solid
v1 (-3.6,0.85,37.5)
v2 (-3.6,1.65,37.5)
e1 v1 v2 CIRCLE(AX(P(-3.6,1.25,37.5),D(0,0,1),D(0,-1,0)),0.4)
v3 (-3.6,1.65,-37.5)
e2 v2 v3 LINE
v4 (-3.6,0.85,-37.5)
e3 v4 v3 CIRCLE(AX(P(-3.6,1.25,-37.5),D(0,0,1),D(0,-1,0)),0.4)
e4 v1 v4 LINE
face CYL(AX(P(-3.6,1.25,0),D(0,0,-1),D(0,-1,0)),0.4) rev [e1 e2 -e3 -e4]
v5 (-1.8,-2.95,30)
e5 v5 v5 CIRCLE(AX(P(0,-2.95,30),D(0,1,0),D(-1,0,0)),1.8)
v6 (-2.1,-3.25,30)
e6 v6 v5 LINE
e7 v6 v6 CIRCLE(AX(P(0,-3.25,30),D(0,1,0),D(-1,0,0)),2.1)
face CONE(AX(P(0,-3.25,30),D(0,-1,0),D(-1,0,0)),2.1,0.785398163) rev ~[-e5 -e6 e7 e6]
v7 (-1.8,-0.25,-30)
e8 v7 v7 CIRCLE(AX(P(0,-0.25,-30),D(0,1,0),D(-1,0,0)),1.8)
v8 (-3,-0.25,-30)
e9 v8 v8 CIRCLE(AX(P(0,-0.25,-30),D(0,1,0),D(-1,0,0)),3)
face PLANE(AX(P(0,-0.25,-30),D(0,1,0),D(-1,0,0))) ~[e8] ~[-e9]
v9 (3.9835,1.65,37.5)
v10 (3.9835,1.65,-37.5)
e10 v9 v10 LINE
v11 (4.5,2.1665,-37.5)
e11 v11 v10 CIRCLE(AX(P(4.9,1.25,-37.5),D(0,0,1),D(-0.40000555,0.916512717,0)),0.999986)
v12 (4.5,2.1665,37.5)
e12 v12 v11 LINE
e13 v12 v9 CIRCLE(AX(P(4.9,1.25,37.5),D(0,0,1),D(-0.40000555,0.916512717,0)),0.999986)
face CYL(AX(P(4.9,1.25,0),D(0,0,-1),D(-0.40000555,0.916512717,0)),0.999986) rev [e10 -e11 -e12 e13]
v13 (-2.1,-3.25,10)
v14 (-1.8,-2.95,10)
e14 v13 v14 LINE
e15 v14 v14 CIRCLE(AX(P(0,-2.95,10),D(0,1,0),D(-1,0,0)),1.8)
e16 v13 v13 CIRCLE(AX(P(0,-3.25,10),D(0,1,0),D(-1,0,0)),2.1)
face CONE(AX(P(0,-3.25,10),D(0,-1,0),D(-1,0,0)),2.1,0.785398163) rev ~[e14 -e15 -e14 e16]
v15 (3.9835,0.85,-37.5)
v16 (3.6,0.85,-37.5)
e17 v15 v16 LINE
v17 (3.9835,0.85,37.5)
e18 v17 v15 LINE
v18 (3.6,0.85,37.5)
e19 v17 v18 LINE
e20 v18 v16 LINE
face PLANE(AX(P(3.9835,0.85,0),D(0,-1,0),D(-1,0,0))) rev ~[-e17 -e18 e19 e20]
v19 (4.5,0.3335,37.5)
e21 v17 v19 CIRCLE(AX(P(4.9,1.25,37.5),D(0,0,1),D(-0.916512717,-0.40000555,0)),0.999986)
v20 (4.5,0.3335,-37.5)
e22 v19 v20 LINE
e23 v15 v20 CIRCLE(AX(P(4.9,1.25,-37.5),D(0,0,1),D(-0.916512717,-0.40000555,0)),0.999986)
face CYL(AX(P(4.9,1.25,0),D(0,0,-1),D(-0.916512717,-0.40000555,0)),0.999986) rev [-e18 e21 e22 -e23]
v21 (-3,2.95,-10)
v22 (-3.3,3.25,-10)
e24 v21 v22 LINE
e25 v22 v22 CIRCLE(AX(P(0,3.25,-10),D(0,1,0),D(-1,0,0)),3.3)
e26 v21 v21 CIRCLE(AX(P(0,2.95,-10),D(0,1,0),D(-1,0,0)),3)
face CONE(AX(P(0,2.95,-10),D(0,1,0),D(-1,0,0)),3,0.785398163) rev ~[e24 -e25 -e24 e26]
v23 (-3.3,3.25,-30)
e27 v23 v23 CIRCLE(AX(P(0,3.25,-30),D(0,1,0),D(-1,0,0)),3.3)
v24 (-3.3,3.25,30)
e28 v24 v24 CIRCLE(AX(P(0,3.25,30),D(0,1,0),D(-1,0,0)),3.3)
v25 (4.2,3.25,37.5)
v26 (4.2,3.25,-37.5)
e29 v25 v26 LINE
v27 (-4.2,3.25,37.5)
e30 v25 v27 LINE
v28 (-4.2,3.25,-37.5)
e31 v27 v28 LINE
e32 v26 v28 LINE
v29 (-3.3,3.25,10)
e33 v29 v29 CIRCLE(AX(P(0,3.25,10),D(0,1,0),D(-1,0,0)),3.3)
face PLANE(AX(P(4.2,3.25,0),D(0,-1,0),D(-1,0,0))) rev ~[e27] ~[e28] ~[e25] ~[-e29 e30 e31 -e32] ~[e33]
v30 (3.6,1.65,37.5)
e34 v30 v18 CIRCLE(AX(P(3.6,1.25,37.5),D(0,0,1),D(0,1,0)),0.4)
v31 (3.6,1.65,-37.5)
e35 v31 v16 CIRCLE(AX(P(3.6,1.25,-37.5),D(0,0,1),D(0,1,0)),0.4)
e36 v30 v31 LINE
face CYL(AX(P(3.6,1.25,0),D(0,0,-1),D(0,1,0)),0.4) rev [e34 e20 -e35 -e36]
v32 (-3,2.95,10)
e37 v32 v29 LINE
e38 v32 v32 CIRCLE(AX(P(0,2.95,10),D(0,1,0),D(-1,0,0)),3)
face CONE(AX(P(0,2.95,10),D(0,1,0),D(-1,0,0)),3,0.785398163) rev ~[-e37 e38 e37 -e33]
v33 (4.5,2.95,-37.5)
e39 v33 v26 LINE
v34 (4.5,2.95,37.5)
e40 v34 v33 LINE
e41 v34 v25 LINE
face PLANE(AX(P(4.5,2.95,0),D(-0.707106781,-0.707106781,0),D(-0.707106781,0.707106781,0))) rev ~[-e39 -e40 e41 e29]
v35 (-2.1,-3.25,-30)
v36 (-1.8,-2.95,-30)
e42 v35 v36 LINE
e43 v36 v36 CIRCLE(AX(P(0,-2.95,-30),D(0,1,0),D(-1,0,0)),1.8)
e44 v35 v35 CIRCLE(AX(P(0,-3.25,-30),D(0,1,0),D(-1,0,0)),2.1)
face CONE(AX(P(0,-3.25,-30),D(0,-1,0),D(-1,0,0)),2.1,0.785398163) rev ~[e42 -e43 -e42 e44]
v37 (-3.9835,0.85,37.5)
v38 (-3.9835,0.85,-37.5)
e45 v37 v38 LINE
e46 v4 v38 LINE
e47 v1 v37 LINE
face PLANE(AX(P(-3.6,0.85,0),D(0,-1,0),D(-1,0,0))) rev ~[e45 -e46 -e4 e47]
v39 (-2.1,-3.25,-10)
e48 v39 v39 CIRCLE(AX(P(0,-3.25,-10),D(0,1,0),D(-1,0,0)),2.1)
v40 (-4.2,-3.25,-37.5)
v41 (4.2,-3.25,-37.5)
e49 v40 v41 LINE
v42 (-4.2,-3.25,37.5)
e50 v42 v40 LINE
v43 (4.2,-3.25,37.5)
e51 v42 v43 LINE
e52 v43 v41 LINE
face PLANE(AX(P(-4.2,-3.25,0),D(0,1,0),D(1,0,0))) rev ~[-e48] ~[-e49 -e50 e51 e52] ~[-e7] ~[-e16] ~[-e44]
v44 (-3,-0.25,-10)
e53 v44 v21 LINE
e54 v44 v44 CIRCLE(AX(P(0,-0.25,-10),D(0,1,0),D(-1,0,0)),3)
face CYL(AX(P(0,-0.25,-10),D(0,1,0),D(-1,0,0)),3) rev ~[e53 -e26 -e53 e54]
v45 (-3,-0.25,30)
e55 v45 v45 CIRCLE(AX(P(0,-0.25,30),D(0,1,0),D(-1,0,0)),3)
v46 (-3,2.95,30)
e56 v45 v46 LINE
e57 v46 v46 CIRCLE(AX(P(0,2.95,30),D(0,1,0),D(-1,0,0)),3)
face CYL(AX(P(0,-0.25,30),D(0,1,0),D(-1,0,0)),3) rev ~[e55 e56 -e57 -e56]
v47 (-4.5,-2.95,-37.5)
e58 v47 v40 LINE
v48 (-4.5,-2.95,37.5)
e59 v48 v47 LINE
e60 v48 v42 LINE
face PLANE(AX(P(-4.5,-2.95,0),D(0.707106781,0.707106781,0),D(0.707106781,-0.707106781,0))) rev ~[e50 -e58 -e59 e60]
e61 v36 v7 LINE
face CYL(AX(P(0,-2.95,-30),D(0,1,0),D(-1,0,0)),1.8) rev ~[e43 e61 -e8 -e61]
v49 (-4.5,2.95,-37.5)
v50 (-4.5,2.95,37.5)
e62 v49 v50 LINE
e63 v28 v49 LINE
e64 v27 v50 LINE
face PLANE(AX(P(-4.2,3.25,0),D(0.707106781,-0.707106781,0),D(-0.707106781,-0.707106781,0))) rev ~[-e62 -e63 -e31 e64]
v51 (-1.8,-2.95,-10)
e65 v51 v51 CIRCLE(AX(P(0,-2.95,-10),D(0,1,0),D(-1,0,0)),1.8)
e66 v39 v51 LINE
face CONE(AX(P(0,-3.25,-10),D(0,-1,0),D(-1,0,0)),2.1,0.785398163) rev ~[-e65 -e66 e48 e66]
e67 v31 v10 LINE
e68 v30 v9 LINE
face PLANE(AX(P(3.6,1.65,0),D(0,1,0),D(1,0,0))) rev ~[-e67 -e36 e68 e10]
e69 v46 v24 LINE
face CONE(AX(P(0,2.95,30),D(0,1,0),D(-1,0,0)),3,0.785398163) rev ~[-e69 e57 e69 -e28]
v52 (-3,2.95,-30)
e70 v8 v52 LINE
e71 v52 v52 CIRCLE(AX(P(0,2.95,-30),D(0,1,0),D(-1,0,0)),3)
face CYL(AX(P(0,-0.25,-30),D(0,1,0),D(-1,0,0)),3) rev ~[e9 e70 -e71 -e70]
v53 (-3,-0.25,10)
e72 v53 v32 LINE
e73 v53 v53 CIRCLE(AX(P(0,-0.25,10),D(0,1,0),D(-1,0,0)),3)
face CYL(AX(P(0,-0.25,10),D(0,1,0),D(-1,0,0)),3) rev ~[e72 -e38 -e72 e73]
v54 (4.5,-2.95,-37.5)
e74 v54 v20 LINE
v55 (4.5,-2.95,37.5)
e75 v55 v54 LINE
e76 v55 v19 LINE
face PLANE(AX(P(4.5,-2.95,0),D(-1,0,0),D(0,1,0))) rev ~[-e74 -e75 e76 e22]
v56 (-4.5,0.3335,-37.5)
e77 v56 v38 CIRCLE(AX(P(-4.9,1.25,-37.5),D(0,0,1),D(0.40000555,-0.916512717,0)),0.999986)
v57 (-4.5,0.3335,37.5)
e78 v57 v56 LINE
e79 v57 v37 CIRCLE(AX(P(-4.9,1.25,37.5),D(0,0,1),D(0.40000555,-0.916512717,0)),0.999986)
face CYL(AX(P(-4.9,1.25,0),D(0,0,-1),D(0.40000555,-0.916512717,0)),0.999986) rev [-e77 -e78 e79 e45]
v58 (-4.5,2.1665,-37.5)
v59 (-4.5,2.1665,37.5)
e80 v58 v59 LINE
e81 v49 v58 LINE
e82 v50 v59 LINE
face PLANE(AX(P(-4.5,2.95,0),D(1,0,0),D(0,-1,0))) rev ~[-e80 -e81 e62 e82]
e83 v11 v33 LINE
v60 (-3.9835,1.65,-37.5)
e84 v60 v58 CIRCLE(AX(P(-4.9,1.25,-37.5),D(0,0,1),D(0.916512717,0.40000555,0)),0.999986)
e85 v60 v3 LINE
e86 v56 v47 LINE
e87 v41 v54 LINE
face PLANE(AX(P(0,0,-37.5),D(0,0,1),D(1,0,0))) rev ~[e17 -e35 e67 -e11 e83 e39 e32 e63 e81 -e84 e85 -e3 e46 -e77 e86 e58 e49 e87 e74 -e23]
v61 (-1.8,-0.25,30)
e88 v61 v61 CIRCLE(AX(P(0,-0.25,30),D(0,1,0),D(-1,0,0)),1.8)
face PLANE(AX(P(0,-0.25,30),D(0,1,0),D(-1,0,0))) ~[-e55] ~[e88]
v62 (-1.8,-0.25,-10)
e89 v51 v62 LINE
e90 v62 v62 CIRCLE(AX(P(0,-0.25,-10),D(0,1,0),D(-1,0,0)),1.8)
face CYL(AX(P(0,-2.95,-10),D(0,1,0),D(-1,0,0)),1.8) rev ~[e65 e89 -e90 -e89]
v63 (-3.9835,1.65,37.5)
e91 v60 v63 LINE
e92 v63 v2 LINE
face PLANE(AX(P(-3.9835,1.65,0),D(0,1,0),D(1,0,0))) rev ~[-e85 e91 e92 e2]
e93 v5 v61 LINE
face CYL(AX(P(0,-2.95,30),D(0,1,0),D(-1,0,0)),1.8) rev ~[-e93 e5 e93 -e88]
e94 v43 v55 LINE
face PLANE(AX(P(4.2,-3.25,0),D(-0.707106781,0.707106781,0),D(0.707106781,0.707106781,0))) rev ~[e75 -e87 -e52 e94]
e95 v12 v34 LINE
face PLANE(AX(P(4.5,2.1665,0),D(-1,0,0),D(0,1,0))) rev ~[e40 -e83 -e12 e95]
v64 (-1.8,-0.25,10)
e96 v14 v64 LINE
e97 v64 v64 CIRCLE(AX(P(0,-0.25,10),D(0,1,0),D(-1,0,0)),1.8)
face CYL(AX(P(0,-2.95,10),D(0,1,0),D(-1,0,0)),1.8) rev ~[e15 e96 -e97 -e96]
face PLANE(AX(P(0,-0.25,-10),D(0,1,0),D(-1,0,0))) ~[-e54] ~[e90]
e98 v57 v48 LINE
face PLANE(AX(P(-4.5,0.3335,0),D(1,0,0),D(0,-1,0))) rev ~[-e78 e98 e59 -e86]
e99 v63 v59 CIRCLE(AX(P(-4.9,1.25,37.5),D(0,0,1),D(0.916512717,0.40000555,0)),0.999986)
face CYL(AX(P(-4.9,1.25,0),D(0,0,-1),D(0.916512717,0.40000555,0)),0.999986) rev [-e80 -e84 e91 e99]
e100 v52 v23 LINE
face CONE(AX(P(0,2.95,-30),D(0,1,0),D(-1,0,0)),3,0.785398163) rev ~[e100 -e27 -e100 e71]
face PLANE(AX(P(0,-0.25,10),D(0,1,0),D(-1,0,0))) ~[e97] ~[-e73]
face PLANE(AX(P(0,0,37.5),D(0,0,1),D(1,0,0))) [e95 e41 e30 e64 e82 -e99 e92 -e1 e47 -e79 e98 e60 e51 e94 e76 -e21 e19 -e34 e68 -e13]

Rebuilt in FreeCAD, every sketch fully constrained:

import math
import FreeCAD as App
import Part
import Sketcher
Q = App.Units.Quantity


def add_polygon(sketch, points):
    """Adds a closed chain of lines whose ends are joined by coincident constraints."""
    first, n = sketch.GeometryCount, len(points)
    for a, b in zip(points, points[1:] + points[:1]):
        sketch.addGeometry(Part.LineSegment(App.Vector(*a, 0), App.Vector(*b, 0)), False)
    for i in range(n):
        sketch.addConstraint(Sketcher.Constraint("Coincident", first + i, 2, first + (i + 1) % n, 1))

doc = App.newDocument("Part")
params = doc.addObject("Spreadsheet::Sheet", "Params")
for row, (alias, value) in enumerate([
    ("sketch1_radius", "1 mm"),
    ("sketch1_radius2", "0.4 mm"),
    ("sketch1_width", "8.4 mm"),
    ("pad1_length", "75 mm"),
    ("sketch2_width", "3.3 mm"),
    ("sketch2_width2", "1.2 mm"),
    ("sketch2_height", "6.5 mm"),
    ("sketch2_height2", "3.2 mm"),
    ("sketch2_height3", "2.7 mm"),
    ("groove_angle", "360 deg"),
    ("linearpattern_pitch", "20 mm"),
], start=1):
    params.set(f"A{row}", alias)
    params.set(f"B{row}", "=" + value)
    params.setAlias(f"B{row}", alias)

body = doc.addObject("PartDesign::Body", "Body")

# Sketch on XY plane
sketch1 = body.newObject("Sketcher::SketchObject", "Sketch")
sketch1.AttachmentSupport = (doc.getObject("XY_Plane"), [""])
sketch1.MapMode = "FlatFace"
sketch1.addGeometry([
    Part.LineSegment(App.Vector(-4.2, 3.25, 0), App.Vector(-4.5, 2.95, 0)),  # 0
    Part.LineSegment(App.Vector(-4.5, 2.95, 0), App.Vector(-4.5, 2.17, 0)),  # 1
    Part.ArcOfCircle(Part.Circle(App.Vector(-4.9, 1.25, 0), App.Vector(0, 0, 1), 1), math.radians(24), math.radians(66)),  # 2
    Part.LineSegment(App.Vector(-3.98, 1.65, 0), App.Vector(-3.6, 1.65, 0)),  # 3
    Part.ArcOfCircle(Part.Circle(App.Vector(-3.6, 1.25, 0), App.Vector(0, 0, 1), 0.4), math.radians(-90), math.radians(90)),  # 4
    Part.LineSegment(App.Vector(-3.6, 0.85, 0), App.Vector(-3.98, 0.85, 0)),  # 5
    Part.ArcOfCircle(Part.Circle(App.Vector(-4.9, 1.25, 0), App.Vector(0, 0, 1), 1), math.radians(-66), math.radians(-24)),  # 6
    Part.LineSegment(App.Vector(-4.5, 0.33, 0), App.Vector(-4.5, -2.95, 0)),  # 7
    Part.LineSegment(App.Vector(-4.5, -2.95, 0), App.Vector(-4.2, -3.25, 0)),  # 8
    Part.LineSegment(App.Vector(-4.2, -3.25, 0), App.Vector(4.2, -3.25, 0)),  # 9
    Part.LineSegment(App.Vector(4.2, -3.25, 0), App.Vector(4.5, -2.95, 0)),  # 10
    Part.LineSegment(App.Vector(4.5, -2.95, 0), App.Vector(4.5, 0.33, 0)),  # 11
    Part.ArcOfCircle(Part.Circle(App.Vector(4.9, 1.25, 0), App.Vector(0, 0, 1), 1), math.radians(-156), math.radians(-114)),  # 12
    Part.LineSegment(App.Vector(3.98, 0.85, 0), App.Vector(3.6, 0.85, 0)),  # 13
    Part.ArcOfCircle(Part.Circle(App.Vector(3.6, 1.25, 0), App.Vector(0, 0, 1), 0.4), math.radians(90), math.radians(270)),  # 14
    Part.LineSegment(App.Vector(3.6, 1.65, 0), App.Vector(3.98, 1.65, 0)),  # 15
    Part.ArcOfCircle(Part.Circle(App.Vector(4.9, 1.25, 0), App.Vector(0, 0, 1), 1), math.radians(114), math.radians(156)),  # 16
    Part.LineSegment(App.Vector(4.5, 2.17, 0), App.Vector(4.5, 2.95, 0)),  # 17
    Part.LineSegment(App.Vector(4.5, 2.95, 0), App.Vector(4.2, 3.25, 0)),  # 18
    Part.LineSegment(App.Vector(4.2, 3.25, 0), App.Vector(-4.2, 3.25, 0)),  # 19
], False)
sketch1.addConstraint([
    Sketcher.Constraint("Coincident", 0, 2, 1, 1),
    Sketcher.Constraint("Coincident", 1, 2, 2, 2),
    Sketcher.Constraint("Coincident", 2, 1, 3, 1),
    Sketcher.Constraint("Tangent", 3, 2, 4, 2),
    Sketcher.Constraint("Tangent", 4, 1, 5, 1),
    Sketcher.Constraint("Coincident", 5, 2, 6, 2),
    Sketcher.Constraint("Coincident", 6, 1, 7, 1),
    Sketcher.Constraint("Coincident", 7, 2, 8, 1),
    Sketcher.Constraint("Coincident", 8, 2, 9, 1),
    Sketcher.Constraint("Coincident", 9, 2, 10, 1),
    Sketcher.Constraint("Coincident", 10, 2, 11, 1),
    Sketcher.Constraint("Coincident", 11, 2, 12, 2),
    Sketcher.Constraint("Coincident", 12, 1, 13, 1),
    Sketcher.Constraint("Tangent", 13, 2, 14, 2),
    Sketcher.Constraint("Tangent", 14, 1, 15, 1),
    Sketcher.Constraint("Coincident", 15, 2, 16, 2),
    Sketcher.Constraint("Coincident", 16, 1, 17, 1),
    Sketcher.Constraint("Coincident", 17, 2, 18, 1),
    Sketcher.Constraint("Coincident", 18, 2, 19, 1),
    Sketcher.Constraint("Coincident", 19, 2, 0, 1),
    Sketcher.Constraint("Vertical", 1),
    Sketcher.Constraint("Horizontal", 3),
    Sketcher.Constraint("Horizontal", 5),
    Sketcher.Constraint("Vertical", 7),
    Sketcher.Constraint("Horizontal", 9),
    Sketcher.Constraint("Vertical", 11),
    Sketcher.Constraint("Horizontal", 13),
    Sketcher.Constraint("Horizontal", 15),
    Sketcher.Constraint("Vertical", 17),
    Sketcher.Constraint("Horizontal", 19),
    Sketcher.Constraint("Coincident", 6, 3, 2, 3),
    Sketcher.Constraint("Coincident", 16, 3, 12, 3),
    Sketcher.Constraint("Equal", 2, 6),
    Sketcher.Constraint("Equal", 6, 12),
    Sketcher.Constraint("Equal", 4, 14),
    Sketcher.Constraint("Equal", 12, 16),
    Sketcher.Constraint("Symmetric", 0, 2, 10, 2, -1, 1),
    Sketcher.Constraint("Symmetric", 7, 2, 17, 2, -1, 1),
    Sketcher.Constraint("Symmetric", 8, 2, 18, 2, -1, 1),
    Sketcher.Constraint("Symmetric", 2, 3, 12, 3, -2),
    Sketcher.Constraint("Symmetric", 4, 3, 14, 3, -2),
    Sketcher.Constraint("Symmetric", 7, 2, 10, 2, -2),
    Sketcher.Constraint("Perpendicular", 0, 8),
    Sketcher.Constraint("Perpendicular", 8, 10),
    Sketcher.Constraint("Horizontal", 2, 3, 4, 3),
    Sketcher.Constraint("Vertical", 9, 2, 18, 2),
    Sketcher.Constraint("Radius", 2, Q("1 mm")),
    Sketcher.Constraint("Radius", 4, Q("0.4 mm")),
    Sketcher.Constraint("DistanceX", 9, 1, 9, 2, Q("8.4 mm")),
    Sketcher.Constraint("DistanceY", 14, 3, 18, 2, Q("2 mm")),
    Sketcher.Constraint("DistanceX", 2, 3, -1, 1, Q("4.9 mm")),
    Sketcher.Constraint("DistanceX", 4, 3, -1, 1, Q("3.6 mm")),
    Sketcher.Constraint("DistanceX", 0, 2, -1, 1, Q("4.5 mm")),
    Sketcher.Constraint("DistanceY", 7, 2, 5, 2, Q("3.8 mm")),
])
sketch1.setExpression("Constraints[46]", "Params.sketch1_radius")
sketch1.setExpression("Constraints[47]", "Params.sketch1_radius2")
sketch1.setExpression("Constraints[48]", "Params.sketch1_width")
pad1 = body.newObject("PartDesign::Pad", "Pad")
pad1.Profile = sketch1
pad1.setExpression("Length", "Params.pad1_length")
pad1.Midplane = True

# Sketch on XY plane
sketch2 = body.newObject("Sketcher::SketchObject", "Sketch001")
sketch2.AttachmentSupport = (doc.getObject("XY_Plane"), [""])
sketch2.MapMode = "FlatFace"
sketch2.AttachmentOffset = App.Placement(App.Vector(0, 0, 30), App.Rotation())
add_polygon(sketch2, [(0, -3.25), (0, 3.25), (-3.3, 3.25), (-3, 2.95), (-3, -0.25), (-1.8, -0.25), (-1.8, -2.95), (-2.1, -3.25)])  # lines 0-7
sketch2.addConstraint([
    Sketcher.Constraint("Vertical", 0),
    Sketcher.Constraint("Horizontal", 1),
    Sketcher.Constraint("Vertical", 3),
    Sketcher.Constraint("Horizontal", 4),
    Sketcher.Constraint("Vertical", 5),
    Sketcher.Constraint("Horizontal", 7),
    Sketcher.Constraint("Symmetric", 0, 2, 7, 2, -1, 1),
    Sketcher.Constraint("Perpendicular", 2, 6),
    Sketcher.Constraint("Equal", 2, 6),
    Sketcher.Constraint("Angle", 2, Q("-45 deg")),
    Sketcher.Constraint("DistanceX", 1, 2, 1, 1, Q("3.3 mm")),
    Sketcher.Constraint("DistanceX", 4, 1, 4, 2, Q("1.2 mm")),
    Sketcher.Constraint("DistanceY", 0, 1, 0, 2, Q("6.5 mm")),
    Sketcher.Constraint("DistanceY", 3, 2, 3, 1, Q("3.2 mm")),
    Sketcher.Constraint("DistanceY", 5, 2, 5, 1, Q("2.7 mm")),
])
sketch2.setExpression("Constraints[18]", "Params.sketch2_width")
sketch2.setExpression("Constraints[19]", "Params.sketch2_width2")
sketch2.setExpression("Constraints[20]", "Params.sketch2_height")
sketch2.setExpression("Constraints[21]", "Params.sketch2_height2")
sketch2.setExpression("Constraints[22]", "Params.sketch2_height3")
groove = body.newObject("PartDesign::Groove", "Groove")
groove.Profile = sketch2
groove.ReferenceAxis = (sketch2, ["V_Axis"])
groove.setExpression("Angle", "Params.groove_angle")
doc.recompute()

linearpattern = body.newObject("PartDesign::LinearPattern", "LinearPattern")
linearpattern.Originals = [groove]
linearpattern.Direction = (doc.getObject("Z_Axis"), [""])
linearpattern.Mode = "offset"
linearpattern.setExpression("Offset", "Params.linearpattern_pitch")
linearpattern.Occurrences = 4
linearpattern.Reversed = True
body.Tip = linearpattern

doc.recompute()
